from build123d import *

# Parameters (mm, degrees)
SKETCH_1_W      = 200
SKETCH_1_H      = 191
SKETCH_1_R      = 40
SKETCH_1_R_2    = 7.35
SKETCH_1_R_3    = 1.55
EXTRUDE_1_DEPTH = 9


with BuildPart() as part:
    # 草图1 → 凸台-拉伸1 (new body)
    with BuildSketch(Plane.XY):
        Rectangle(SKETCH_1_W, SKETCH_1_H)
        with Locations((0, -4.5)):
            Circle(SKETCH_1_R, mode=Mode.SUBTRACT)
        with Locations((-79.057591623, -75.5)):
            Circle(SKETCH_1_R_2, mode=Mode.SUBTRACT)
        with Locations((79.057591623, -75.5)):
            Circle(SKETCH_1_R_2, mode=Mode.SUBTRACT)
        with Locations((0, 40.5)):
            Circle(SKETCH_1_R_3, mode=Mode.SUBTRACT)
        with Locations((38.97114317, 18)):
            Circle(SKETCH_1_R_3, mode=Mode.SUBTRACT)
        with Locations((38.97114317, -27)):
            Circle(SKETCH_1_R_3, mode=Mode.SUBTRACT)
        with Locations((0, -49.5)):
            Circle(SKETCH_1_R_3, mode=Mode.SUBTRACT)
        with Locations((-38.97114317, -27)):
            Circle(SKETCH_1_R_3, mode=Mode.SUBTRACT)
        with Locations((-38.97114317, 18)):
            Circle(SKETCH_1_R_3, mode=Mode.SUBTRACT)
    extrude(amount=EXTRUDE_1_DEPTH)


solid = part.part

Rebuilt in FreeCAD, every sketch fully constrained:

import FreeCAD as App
import Part
import Sketcher

doc = App.newDocument("Part")
body = doc.addObject("PartDesign::Body", "Body")

sketch1 = body.newObject("Sketcher::SketchObject", "Sketch")
sketch1.AttachmentSupport = (doc.getObject("XY_Plane"), [""])
sketch1.MapMode = "FlatFace"
sketch1.addGeometry([
    Part.LineSegment(App.Vector(-100, 95.5, 0), App.Vector(-100, -95.5, 0)),
    Part.LineSegment(App.Vector(-100, -95.5, 0), App.Vector(100, -95.5, 0)),
    Part.LineSegment(App.Vector(100, -95.5, 0), App.Vector(100, 95.5, 0)),
    Part.LineSegment(App.Vector(100, 95.5, 0), App.Vector(-100, 95.5, 0)),
    Part.Circle(App.Vector(-79.057592, -75.5, 0), App.Vector(0, 0, 1), 7.35),
    Part.Circle(App.Vector(0, -49.5, 0), App.Vector(0, 0, 1), 1.55),
    Part.Circle(App.Vector(-38.971143, -27, 0), App.Vector(0, 0, 1), 1.55),
    Part.Circle(App.Vector(79.057592, -75.5, 0), App.Vector(0, 0, 1), 7.35),
    Part.Circle(App.Vector(38.971143, -27, 0), App.Vector(0, 0, 1), 1.55),
    Part.Circle(App.Vector(0, -4.5, 0), App.Vector(0, 0, 1), 40),
    Part.Circle(App.Vector(-38.971143, 18, 0), App.Vector(0, 0, 1), 1.55),
    Part.Circle(App.Vector(0, 40.5, 0), App.Vector(0, 0, 1), 1.55),
    Part.Circle(App.Vector(38.971143, 18, 0), App.Vector(0, 0, 1), 1.55),
], False)
sketch1.addConstraint([
    Sketcher.Constraint("Coincident", 0, 2, 1, 1),
    Sketcher.Constraint("Coincident", 1, 2, 2, 1),
    Sketcher.Constraint("Coincident", 2, 2, 3, 1),
    Sketcher.Constraint("Coincident", 3, 2, 0, 1),
    Sketcher.Constraint("Vertical", 0),
    Sketcher.Constraint("Horizontal", 1),
    Sketcher.Constraint("Vertical", 2),
    Sketcher.Constraint("Horizontal", 3),
    Sketcher.Constraint("Equal", 5, 6),
    Sketcher.Constraint("Equal", 4, 7),
    Sketcher.Constraint("Equal", 6, 8),
    Sketcher.Constraint("Equal", 8, 10),
    Sketcher.Constraint("Equal", 10, 11),
    Sketcher.Constraint("Equal", 11, 12),
    Sketcher.Constraint("Symmetric", 0, 2, 2, 2, -1, 1),
    Sketcher.Constraint("Symmetric", 4, 3, 7, 3, -2),
    Sketcher.Constraint("Symmetric", 6, 3, 8, 3, -2),
    Sketcher.Constraint("Symmetric", 10, 3, 12, 3, -2),
    Sketcher.Constraint("PointOnObject", 5, 3, -2),
    Sketcher.Constraint("PointOnObject", 9, 3, -2),
    Sketcher.Constraint("PointOnObject", 11, 3, -2),
    Sketcher.Constraint("Vertical", 6, 3, 10, 3),
    Sketcher.Constraint("Diameter", 9, 80.0),
    Sketcher.Constraint("Diameter", 4, 14.7),
    Sketcher.Constraint("Diameter", 5, 3.1),
    Sketcher.Constraint("DistanceX", 1, 1, 1, 2, 200.0),
    Sketcher.Constraint("DistanceY", 0, 2, 0, 1, 191.0),
    Sketcher.Constraint("DistanceY", 6, 3, -1, 1, 27.0),
    Sketcher.Constraint("DistanceY", -1, 1, 10, 3, 18.0),
    Sketcher.Constraint("DistanceY", 4, 3, 5, 3, 26.0),
    Sketcher.Constraint("DistanceY", 5, 3, 9, 3, 45.0),
    Sketcher.Constraint("DistanceY", 9, 3, 11, 3, 45.0),
    Sketcher.Constraint("DistanceY", 0, 2, 4, 3, 20.0),
    Sketcher.Constraint("DistanceX", 4, 3, -1, 1, 79.057592),
    Sketcher.Constraint("DistanceX", 4, 3, 6, 3, 40.086448),
])
pad1 = body.newObject("PartDesign::Pad", "Pad")
pad1.Profile = sketch1
pad1.Length = 9

doc.recompute()
